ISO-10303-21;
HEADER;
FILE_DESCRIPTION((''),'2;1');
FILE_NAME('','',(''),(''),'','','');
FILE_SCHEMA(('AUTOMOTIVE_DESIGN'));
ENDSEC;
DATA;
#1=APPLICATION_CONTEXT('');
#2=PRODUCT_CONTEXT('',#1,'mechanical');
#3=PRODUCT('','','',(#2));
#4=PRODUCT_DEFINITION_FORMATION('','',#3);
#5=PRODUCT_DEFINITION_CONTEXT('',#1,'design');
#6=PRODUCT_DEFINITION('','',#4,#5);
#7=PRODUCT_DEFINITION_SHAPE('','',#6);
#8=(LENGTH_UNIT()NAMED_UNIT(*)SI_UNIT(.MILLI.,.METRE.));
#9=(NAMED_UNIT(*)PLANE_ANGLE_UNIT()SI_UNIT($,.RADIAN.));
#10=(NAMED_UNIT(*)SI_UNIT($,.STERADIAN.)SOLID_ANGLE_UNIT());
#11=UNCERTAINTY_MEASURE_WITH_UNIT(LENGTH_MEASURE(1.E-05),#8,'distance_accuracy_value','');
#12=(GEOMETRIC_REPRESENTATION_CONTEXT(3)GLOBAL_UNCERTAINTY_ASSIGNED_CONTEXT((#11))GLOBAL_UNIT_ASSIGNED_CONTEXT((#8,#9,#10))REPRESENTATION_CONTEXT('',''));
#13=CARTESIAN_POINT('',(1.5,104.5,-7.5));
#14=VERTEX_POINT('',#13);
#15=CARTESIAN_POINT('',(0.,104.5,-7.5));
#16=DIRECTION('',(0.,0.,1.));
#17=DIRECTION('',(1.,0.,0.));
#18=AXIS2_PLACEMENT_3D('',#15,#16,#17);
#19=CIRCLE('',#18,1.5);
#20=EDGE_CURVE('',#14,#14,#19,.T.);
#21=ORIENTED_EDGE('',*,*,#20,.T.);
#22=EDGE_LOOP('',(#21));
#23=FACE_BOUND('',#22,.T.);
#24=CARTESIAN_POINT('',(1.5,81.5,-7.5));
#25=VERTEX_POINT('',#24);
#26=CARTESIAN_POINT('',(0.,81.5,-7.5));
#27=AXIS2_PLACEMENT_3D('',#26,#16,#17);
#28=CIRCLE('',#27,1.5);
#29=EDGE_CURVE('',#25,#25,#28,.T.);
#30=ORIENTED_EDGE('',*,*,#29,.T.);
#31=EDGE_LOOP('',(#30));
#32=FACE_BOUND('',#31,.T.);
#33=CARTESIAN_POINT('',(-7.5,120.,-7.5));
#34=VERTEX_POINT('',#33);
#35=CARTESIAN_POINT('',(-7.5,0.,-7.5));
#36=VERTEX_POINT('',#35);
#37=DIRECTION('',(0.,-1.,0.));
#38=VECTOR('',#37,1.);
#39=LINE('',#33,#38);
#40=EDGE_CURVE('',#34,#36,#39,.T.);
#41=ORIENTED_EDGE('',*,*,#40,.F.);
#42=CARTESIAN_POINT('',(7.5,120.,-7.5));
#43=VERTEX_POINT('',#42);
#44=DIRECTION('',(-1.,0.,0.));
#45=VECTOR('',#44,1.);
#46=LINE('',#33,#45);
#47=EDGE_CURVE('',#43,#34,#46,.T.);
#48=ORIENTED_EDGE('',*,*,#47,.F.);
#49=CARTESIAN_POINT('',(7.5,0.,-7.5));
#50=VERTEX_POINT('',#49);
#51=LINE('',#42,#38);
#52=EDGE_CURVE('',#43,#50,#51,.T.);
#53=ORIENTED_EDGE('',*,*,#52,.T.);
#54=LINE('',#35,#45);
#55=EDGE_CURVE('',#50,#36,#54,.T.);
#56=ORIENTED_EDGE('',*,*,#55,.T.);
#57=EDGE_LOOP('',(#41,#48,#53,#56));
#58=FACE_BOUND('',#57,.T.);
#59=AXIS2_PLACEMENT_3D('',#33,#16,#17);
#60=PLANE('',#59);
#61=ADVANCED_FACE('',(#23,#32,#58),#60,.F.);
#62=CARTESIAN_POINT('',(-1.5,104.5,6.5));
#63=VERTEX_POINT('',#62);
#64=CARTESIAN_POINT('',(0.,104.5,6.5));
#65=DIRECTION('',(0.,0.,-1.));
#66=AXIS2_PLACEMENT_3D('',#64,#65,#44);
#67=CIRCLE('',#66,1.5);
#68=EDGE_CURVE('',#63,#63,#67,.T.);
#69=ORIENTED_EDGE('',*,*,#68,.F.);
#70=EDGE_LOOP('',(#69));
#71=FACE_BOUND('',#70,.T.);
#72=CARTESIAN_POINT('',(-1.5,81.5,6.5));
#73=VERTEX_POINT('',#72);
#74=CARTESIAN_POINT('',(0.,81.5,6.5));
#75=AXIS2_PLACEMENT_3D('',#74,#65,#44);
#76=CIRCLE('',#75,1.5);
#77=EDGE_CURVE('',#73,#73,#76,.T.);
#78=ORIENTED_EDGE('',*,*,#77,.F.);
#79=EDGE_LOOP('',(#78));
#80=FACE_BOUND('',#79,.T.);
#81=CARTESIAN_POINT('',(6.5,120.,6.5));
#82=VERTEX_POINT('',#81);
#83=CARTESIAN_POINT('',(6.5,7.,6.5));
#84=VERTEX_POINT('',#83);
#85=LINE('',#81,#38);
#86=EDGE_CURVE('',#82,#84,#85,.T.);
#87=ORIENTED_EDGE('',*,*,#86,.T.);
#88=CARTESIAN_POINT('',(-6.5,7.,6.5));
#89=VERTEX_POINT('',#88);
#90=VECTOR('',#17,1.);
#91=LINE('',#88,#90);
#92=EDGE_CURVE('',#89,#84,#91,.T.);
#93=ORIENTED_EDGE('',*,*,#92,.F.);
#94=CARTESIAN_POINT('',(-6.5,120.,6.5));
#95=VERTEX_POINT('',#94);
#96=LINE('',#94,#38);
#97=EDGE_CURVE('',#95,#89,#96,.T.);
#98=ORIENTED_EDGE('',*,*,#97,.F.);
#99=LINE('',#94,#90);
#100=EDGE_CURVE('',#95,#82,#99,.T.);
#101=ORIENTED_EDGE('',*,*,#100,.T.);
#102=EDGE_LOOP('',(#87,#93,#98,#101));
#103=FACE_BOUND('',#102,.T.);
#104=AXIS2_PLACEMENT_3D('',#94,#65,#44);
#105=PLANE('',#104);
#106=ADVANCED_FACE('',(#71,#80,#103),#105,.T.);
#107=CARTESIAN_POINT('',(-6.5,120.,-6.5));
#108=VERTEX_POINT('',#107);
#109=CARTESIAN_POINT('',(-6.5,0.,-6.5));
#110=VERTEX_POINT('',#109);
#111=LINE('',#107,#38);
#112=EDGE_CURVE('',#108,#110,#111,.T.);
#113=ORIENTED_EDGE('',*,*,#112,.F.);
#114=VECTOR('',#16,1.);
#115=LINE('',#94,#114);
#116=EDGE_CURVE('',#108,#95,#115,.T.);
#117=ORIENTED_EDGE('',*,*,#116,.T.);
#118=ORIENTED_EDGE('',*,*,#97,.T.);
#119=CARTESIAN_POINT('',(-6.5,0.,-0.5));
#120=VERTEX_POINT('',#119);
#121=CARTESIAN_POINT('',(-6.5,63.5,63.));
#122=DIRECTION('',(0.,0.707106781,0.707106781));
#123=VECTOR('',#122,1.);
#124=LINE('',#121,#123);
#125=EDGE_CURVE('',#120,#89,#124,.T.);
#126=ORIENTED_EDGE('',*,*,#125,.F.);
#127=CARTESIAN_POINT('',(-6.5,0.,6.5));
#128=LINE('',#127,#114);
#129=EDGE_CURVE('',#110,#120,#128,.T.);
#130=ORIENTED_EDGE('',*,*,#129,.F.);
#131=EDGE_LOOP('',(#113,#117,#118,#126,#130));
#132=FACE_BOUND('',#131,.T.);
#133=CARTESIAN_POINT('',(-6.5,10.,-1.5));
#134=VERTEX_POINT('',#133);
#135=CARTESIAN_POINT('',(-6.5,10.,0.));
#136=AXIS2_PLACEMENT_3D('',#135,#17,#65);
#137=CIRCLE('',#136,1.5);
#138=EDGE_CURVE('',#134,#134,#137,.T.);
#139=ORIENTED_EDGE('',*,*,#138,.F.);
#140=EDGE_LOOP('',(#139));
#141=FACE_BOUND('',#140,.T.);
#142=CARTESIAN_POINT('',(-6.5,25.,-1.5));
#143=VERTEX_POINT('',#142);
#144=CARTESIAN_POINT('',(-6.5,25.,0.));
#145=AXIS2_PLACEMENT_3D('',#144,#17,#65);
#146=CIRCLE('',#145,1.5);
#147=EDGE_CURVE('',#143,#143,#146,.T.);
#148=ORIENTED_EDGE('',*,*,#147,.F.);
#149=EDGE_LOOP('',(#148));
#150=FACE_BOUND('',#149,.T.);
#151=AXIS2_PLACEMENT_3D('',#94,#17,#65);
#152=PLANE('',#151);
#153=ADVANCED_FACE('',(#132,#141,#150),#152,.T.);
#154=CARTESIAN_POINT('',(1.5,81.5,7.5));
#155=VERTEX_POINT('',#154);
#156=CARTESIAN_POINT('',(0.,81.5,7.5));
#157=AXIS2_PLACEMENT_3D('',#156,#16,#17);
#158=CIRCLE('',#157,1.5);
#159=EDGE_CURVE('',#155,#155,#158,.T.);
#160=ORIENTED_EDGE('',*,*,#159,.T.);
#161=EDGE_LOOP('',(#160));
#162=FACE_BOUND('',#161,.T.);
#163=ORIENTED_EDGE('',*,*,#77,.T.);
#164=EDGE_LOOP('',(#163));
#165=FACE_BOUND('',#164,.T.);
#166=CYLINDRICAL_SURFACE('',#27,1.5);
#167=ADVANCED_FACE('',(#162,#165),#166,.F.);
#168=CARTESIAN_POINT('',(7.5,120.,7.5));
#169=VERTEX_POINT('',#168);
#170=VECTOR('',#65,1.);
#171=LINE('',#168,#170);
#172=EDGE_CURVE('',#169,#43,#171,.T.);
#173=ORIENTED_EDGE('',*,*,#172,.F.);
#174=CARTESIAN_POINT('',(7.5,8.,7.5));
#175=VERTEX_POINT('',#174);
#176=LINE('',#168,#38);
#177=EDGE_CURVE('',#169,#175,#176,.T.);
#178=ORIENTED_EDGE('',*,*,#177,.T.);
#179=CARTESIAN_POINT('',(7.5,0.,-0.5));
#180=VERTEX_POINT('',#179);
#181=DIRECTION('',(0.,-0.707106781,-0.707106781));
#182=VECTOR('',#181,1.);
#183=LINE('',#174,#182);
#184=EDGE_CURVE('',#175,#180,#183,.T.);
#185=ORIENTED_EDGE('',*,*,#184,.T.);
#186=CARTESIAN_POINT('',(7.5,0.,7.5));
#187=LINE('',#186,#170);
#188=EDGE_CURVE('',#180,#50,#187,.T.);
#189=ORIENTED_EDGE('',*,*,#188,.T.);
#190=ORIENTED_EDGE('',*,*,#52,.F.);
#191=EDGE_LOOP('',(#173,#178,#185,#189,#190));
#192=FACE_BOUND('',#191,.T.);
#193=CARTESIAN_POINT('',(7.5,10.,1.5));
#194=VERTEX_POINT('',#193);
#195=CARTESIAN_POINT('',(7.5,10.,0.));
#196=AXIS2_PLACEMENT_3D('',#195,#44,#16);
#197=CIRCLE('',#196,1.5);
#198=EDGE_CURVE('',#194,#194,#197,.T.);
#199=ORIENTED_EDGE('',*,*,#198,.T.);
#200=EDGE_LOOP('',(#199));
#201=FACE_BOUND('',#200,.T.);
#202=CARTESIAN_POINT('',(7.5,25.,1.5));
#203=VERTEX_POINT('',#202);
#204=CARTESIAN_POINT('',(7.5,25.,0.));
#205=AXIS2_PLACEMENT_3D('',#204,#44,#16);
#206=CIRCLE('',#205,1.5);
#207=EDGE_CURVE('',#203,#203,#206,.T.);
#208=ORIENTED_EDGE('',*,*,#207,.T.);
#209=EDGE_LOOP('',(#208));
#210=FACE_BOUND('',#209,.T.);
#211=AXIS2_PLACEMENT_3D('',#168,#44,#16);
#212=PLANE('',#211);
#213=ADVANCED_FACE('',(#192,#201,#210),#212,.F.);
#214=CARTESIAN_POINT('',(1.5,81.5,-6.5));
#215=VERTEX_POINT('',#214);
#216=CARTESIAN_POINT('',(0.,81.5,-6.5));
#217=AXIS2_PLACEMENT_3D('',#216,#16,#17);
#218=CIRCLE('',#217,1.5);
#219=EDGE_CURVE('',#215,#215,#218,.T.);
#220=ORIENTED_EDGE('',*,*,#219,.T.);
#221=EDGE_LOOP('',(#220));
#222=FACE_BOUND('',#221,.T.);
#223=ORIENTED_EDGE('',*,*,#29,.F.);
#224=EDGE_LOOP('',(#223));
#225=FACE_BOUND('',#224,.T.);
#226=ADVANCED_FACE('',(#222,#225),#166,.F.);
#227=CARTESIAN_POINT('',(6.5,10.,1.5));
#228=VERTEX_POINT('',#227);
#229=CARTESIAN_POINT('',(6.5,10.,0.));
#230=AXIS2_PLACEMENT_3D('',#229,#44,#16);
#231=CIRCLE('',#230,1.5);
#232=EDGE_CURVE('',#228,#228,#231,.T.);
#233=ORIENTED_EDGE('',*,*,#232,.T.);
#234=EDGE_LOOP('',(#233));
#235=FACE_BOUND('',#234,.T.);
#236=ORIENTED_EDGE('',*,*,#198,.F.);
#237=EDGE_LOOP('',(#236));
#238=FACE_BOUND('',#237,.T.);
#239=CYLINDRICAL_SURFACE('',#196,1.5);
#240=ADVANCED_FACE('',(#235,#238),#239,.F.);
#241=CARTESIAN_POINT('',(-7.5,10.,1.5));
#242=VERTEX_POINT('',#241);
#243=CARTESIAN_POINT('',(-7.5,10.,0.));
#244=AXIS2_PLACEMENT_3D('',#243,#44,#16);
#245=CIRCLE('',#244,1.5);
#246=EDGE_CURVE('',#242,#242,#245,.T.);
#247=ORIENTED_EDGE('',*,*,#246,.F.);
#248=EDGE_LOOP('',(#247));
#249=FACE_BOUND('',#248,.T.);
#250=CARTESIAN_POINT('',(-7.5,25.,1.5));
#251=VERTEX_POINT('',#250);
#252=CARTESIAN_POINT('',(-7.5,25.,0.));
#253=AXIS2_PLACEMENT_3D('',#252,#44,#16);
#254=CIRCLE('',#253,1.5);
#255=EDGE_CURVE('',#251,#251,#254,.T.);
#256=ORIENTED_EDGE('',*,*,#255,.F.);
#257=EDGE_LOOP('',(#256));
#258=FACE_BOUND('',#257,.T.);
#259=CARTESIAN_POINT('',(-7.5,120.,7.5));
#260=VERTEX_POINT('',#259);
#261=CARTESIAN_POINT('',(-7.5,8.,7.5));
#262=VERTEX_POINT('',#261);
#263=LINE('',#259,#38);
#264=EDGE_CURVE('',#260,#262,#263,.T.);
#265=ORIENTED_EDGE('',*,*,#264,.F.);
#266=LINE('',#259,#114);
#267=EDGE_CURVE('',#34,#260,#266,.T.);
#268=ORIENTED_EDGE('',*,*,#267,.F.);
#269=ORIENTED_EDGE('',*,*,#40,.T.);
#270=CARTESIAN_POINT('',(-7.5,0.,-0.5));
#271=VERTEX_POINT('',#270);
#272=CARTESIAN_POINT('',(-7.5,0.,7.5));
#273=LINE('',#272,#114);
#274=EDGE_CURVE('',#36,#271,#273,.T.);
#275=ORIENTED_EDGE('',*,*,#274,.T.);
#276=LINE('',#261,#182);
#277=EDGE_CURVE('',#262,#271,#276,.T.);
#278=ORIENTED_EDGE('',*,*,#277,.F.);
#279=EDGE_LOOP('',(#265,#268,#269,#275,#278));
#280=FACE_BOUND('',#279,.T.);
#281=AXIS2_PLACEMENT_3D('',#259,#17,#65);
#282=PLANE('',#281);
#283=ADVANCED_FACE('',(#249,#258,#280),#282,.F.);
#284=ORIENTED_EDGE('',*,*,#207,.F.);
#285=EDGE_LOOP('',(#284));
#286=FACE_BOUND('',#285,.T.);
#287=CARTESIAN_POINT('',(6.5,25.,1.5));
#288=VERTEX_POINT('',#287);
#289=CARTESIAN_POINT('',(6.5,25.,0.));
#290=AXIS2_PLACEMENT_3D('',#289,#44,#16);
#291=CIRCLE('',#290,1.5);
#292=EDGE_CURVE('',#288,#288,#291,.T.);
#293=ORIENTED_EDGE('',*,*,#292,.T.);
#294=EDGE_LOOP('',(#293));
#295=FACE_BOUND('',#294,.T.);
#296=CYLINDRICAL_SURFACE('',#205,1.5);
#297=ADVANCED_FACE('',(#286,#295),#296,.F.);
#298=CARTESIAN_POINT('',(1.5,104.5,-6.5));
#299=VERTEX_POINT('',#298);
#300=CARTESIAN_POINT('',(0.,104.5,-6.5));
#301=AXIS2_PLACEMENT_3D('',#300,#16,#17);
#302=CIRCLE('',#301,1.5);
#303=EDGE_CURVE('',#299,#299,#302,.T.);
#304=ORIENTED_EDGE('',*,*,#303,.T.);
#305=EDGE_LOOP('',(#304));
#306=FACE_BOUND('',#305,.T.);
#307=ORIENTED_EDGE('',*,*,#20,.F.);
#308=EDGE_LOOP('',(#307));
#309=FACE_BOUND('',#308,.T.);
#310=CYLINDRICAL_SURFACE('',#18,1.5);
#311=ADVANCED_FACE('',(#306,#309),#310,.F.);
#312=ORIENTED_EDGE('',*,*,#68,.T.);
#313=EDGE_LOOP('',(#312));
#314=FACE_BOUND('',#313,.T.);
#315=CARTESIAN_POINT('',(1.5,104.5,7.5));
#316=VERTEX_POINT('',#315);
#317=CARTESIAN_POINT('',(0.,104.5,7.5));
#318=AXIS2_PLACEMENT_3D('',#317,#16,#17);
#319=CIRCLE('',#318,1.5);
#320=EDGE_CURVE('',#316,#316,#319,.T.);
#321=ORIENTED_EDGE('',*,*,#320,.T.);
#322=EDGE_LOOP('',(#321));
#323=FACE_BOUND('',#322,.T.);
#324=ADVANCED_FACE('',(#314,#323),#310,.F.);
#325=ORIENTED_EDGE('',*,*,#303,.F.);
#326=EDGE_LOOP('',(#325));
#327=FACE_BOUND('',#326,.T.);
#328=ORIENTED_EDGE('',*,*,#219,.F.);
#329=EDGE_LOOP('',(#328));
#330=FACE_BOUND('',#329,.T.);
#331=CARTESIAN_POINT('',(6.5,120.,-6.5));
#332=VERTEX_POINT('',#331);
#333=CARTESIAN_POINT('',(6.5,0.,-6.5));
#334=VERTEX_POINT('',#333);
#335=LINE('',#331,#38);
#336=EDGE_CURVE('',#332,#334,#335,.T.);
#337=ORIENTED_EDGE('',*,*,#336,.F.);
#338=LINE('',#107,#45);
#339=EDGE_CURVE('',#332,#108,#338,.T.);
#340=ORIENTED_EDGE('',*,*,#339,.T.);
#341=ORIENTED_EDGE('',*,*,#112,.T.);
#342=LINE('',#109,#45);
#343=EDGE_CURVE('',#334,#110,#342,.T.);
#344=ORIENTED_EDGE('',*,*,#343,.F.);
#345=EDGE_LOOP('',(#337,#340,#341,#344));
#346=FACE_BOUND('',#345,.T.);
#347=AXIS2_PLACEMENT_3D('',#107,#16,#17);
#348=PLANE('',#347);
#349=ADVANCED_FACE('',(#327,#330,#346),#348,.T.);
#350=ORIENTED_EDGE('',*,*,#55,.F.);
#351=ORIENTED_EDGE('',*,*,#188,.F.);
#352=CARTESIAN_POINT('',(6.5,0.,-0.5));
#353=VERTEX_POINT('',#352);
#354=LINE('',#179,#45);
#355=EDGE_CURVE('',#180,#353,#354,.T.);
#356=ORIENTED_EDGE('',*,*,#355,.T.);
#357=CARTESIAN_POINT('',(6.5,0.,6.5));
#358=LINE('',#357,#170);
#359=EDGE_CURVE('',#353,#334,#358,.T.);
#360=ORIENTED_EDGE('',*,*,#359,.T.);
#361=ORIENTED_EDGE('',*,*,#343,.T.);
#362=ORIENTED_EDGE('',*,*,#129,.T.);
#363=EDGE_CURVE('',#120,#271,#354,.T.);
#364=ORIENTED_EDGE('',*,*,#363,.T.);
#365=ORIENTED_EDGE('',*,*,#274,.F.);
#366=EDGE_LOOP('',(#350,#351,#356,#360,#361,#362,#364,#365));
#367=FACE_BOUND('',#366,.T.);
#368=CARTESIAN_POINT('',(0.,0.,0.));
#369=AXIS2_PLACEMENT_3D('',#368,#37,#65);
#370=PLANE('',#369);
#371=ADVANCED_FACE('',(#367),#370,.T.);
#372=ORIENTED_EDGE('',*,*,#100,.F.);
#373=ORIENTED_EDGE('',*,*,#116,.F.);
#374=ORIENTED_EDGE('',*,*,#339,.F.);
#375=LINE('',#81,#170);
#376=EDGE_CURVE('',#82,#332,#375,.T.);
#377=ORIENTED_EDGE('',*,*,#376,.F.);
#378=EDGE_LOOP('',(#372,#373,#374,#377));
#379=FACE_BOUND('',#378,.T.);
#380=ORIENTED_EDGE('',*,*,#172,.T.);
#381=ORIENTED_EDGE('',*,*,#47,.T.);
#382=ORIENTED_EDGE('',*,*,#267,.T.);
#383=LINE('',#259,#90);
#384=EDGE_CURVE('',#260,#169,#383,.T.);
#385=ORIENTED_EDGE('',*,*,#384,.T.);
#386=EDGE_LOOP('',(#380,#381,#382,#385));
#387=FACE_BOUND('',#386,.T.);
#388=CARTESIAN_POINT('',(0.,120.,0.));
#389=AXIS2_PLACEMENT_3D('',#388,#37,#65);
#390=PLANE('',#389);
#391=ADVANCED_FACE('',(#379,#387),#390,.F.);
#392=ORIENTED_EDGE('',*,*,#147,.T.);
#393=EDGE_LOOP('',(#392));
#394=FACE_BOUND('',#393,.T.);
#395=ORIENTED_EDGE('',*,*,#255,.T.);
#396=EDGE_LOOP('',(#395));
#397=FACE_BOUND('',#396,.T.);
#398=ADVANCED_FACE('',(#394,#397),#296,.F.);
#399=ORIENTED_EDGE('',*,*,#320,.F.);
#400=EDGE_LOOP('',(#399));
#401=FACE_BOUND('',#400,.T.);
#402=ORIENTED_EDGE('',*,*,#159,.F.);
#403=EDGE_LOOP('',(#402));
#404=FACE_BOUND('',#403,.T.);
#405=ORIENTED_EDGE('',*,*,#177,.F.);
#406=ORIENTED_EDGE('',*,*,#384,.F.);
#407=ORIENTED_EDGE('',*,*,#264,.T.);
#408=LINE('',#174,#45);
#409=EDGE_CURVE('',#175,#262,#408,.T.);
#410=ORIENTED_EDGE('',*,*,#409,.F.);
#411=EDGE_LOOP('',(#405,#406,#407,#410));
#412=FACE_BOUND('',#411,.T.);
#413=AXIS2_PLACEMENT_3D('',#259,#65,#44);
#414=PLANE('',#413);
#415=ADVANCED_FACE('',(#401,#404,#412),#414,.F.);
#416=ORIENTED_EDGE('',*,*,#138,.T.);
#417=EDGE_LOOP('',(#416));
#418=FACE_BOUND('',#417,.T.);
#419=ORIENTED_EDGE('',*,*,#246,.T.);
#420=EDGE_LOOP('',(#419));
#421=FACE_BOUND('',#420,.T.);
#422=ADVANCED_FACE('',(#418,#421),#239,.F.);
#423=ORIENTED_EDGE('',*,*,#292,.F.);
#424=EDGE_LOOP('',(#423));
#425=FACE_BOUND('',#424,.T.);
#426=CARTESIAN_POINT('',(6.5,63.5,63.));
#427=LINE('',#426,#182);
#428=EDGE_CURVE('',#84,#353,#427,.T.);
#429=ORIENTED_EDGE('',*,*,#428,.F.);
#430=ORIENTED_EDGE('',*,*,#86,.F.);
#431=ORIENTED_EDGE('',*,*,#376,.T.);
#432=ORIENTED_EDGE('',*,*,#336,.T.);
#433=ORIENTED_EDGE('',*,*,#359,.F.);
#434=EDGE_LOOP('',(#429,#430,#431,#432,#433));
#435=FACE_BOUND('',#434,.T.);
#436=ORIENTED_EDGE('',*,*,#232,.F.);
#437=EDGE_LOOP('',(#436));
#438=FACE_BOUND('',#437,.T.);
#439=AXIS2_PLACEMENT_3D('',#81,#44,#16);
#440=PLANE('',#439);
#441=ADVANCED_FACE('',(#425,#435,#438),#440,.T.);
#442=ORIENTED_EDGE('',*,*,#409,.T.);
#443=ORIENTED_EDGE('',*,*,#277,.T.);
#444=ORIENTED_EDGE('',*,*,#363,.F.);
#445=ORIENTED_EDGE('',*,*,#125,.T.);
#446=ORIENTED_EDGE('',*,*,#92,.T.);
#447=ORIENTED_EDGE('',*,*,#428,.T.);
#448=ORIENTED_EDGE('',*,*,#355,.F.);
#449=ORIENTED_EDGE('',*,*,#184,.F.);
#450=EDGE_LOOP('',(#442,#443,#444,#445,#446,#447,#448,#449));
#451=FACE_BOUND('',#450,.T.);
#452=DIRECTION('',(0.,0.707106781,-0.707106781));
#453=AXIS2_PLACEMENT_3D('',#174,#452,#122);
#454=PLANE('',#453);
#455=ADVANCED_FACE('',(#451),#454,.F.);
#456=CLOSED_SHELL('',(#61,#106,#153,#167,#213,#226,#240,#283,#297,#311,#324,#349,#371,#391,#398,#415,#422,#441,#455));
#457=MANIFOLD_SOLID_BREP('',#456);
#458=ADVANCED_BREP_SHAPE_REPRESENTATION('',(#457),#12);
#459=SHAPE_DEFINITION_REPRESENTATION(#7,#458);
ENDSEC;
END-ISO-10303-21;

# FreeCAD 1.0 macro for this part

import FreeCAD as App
import Part
import Sketcher

doc = App.newDocument("Part")
body = doc.addObject("PartDesign::Body", "Body")

# Sketch on XZ plane
sketch1 = doc.addObject("Sketcher::SketchObject", "Sketch")
body.addObject(sketch1)
sketch1.AttachmentSupport = (doc.XZ_Plane, [""])
sketch1.MapMode = "FlatFace"
sketch1.addGeometry(Part.LineSegment(App.Vector(-7.5, -7.5, 0), App.Vector(-7.5, 7.5, 0)), False)
sketch1.addGeometry(Part.LineSegment(App.Vector(-7.5, 7.5, 0), App.Vector(7.5, 7.5, 0)), False)
sketch1.addGeometry(Part.LineSegment(App.Vector(7.5, 7.5, 0), App.Vector(7.5, -7.5, 0)), False)
sketch1.addGeometry(Part.LineSegment(App.Vector(7.5, -7.5, 0), App.Vector(-7.5, -7.5, 0)), False)
sketch1.addGeometry(Part.LineSegment(App.Vector(6.5, 6.5, 0), App.Vector(-6.5, 6.5, 0)), False)
sketch1.addGeometry(Part.LineSegment(App.Vector(-6.5, 6.5, 0), App.Vector(-6.5, -6.5, 0)), False)
sketch1.addGeometry(Part.LineSegment(App.Vector(-6.5, -6.5, 0), App.Vector(6.5, -6.5, 0)), False)
sketch1.addGeometry(Part.LineSegment(App.Vector(6.5, -6.5, 0), App.Vector(6.5, 6.5, 0)), False)
sketch1.addConstraint(Sketcher.Constraint("Coincident", 0, 2, 1, 1))
sketch1.addConstraint(Sketcher.Constraint("Coincident", 1, 2, 2, 1))
sketch1.addConstraint(Sketcher.Constraint("Coincident", 2, 2, 3, 1))
sketch1.addConstraint(Sketcher.Constraint("Coincident", 3, 2, 0, 1))
sketch1.addConstraint(Sketcher.Constraint("Coincident", 4, 2, 5, 1))
sketch1.addConstraint(Sketcher.Constraint("Coincident", 5, 2, 6, 1))
sketch1.addConstraint(Sketcher.Constraint("Coincident", 6, 2, 7, 1))
sketch1.addConstraint(Sketcher.Constraint("Coincident", 7, 2, 4, 1))
sketch1.addConstraint(Sketcher.Constraint("Vertical", 0))
sketch1.addConstraint(Sketcher.Constraint("Horizontal", 1))
sketch1.addConstraint(Sketcher.Constraint("Vertical", 2))
sketch1.addConstraint(Sketcher.Constraint("Horizontal", 3))
sketch1.addConstraint(Sketcher.Constraint("Horizontal", 4))
sketch1.addConstraint(Sketcher.Constraint("Vertical", 5))
sketch1.addConstraint(Sketcher.Constraint("Horizontal", 6))
sketch1.addConstraint(Sketcher.Constraint("Vertical", 7))
sketch1.addConstraint(Sketcher.Constraint("Symmetric", 0, 2, 2, 2, -1, 1))
sketch1.addConstraint(Sketcher.Constraint("Symmetric", 4, 2, 6, 2, -1, 1))
sketch1.addConstraint(Sketcher.Constraint("Equal", 3, 0))
sketch1.addConstraint(Sketcher.Constraint("Equal", 6, 5))
sketch1.addConstraint(Sketcher.Constraint("DistanceX", 1, 1, 1, 2, 15.0))
sketch1.addConstraint(Sketcher.Constraint("DistanceX", 4, 2, 4, 1, 13.0))
pad1 = doc.addObject("PartDesign::Pad", "Pad")
body.addObject(pad1)
pad1.Profile = sketch1
pad1.Length = 120
pad1.Reversed = True

# Sketch on XY plane
sketch2 = doc.addObject("Sketcher::SketchObject", "Sketch001")
body.addObject(sketch2)
sketch2.AttachmentSupport = (doc.XY_Plane, [""])
sketch2.MapMode = "FlatFace"
sketch2.AttachmentOffset = App.Placement(App.Vector(0, 0, 7.5), App.Rotation())
sketch2.addGeometry(Part.Circle(App.Vector(0, 104.5, 0), App.Vector(0, 0, 1), 1.5), False)
sketch2.addGeometry(Part.Circle(App.Vector(0, 81.5, 0), App.Vector(0, 0, 1), 1.5), False)
sketch2.addConstraint(Sketcher.Constraint("Equal", 0, 1))
sketch2.addConstraint(Sketcher.Constraint("PointOnObject", 0, 3, -2))
sketch2.addConstraint(Sketcher.Constraint("PointOnObject", 1, 3, -2))
sketch2.addConstraint(Sketcher.Constraint("Diameter", 0, 3.0))
sketch2.addConstraint(Sketcher.Constraint("DistanceY", 1, 3, 0, 3, 23.0))
sketch2.addConstraint(Sketcher.Constraint("DistanceY", -1, 1, 0, 3, 104.5))
pocket1 = doc.addObject("PartDesign::Pocket", "Pocket")
body.addObject(pocket1)
pocket1.Profile = sketch2
pocket1.Type = "ThroughAll"

# Sketch on YZ plane
sketch3 = doc.addObject("Sketcher::SketchObject", "Sketch002")
body.addObject(sketch3)
sketch3.AttachmentSupport = (doc.YZ_Plane, [""])
sketch3.MapMode = "FlatFace"
sketch3.AttachmentOffset = App.Placement(App.Vector(0, 0, -7.5), App.Rotation())
sketch3.addGeometry(Part.Circle(App.Vector(10, 0, 0), App.Vector(0, 0, 1), 1.5), False)
sketch3.addGeometry(Part.Circle(App.Vector(25, 0, 0), App.Vector(0, 0, 1), 1.5), False)
sketch3.addGeometry(Part.LineSegment(App.Vector(0, -0.5, 0), App.Vector(0, 7.5, 0)), False)
sketch3.addGeometry(Part.LineSegment(App.Vector(0, 7.5, 0), App.Vector(8, 7.5, 0)), False)
sketch3.addGeometry(Part.LineSegment(App.Vector(8, 7.5, 0), App.Vector(0, -0.5, 0)), False)
sketch3.addConstraint(Sketcher.Constraint("Coincident", 2, 2, 3, 1))
sketch3.addConstraint(Sketcher.Constraint("Coincident", 3, 2, 4, 1))
sketch3.addConstraint(Sketcher.Constraint("Coincident", 4, 2, 2, 1))
sketch3.addConstraint(Sketcher.Constraint("Vertical", 2))
sketch3.addConstraint(Sketcher.Constraint("Horizontal", 3))
sketch3.addConstraint(Sketcher.Constraint("Equal", 0, 1))
sketch3.addConstraint(Sketcher.Constraint("PointOnObject", 0, 3, -1))
sketch3.addConstraint(Sketcher.Constraint("PointOnObject", 1, 3, -1))
sketch3.addConstraint(Sketcher.Constraint("PointOnObject", 2, 2, -2))
sketch3.addConstraint(Sketcher.Constraint("Equal", 3, 2))
sketch3.addConstraint(Sketcher.Constraint("Diameter", 0, 3.0))
sketch3.addConstraint(Sketcher.Constraint("DistanceX", 3, 1, 3, 2, 8.0))
sketch3.addConstraint(Sketcher.Constraint("DistanceX", -1, 1, 0, 3, 10.0))
sketch3.addConstraint(Sketcher.Constraint("DistanceX", -1, 1, 1, 3, 25.0))
sketch3.addConstraint(Sketcher.Constraint("DistanceY", -1, 1, 2, 2, 7.5))
pocket2 = doc.addObject("PartDesign::Pocket", "Pocket001")
body.addObject(pocket2)
pocket2.Profile = sketch3
pocket2.Type = "ThroughAll"
pocket2.Reversed = True

doc.recompute()
